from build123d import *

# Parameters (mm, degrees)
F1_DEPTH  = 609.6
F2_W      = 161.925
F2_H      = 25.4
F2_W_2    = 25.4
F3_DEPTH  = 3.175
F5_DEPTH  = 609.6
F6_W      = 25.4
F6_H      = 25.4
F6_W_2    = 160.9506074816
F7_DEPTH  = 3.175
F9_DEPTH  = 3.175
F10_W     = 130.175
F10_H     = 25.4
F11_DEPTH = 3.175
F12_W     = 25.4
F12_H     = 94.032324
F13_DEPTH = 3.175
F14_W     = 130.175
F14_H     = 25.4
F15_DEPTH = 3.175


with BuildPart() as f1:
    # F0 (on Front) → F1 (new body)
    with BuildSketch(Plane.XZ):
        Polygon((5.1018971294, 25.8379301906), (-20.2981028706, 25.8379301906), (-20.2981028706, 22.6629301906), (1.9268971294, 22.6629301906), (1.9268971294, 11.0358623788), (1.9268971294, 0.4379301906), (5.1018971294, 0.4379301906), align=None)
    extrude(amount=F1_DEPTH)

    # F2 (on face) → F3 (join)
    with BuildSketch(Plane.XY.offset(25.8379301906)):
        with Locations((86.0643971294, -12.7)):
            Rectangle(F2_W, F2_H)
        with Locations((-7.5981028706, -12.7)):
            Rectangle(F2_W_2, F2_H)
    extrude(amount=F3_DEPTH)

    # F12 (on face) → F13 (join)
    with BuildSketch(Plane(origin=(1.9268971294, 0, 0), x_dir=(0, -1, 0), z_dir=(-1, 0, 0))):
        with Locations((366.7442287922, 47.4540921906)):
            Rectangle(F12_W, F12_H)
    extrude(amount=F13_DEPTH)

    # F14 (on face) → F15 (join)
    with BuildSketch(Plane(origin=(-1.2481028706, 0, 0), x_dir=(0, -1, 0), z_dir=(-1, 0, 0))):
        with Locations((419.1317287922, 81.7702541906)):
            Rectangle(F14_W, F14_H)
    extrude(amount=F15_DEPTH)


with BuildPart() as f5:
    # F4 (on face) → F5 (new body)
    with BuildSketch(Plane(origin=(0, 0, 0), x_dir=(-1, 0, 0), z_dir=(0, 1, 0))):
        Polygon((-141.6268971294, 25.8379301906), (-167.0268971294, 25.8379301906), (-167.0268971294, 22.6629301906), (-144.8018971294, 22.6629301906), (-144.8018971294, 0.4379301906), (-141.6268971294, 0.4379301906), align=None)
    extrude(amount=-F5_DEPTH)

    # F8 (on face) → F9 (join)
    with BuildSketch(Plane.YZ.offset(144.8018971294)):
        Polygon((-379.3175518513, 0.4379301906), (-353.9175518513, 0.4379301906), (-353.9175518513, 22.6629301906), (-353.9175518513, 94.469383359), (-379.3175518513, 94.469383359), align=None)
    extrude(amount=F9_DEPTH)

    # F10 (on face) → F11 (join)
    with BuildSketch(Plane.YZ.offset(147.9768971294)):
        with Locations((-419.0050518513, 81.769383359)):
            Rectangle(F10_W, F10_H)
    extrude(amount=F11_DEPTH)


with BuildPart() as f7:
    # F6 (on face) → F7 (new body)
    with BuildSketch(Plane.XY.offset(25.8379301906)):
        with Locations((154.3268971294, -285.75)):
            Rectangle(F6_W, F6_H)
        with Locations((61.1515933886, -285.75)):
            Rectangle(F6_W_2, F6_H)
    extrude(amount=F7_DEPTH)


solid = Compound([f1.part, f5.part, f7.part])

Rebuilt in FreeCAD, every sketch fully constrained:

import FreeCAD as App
import Part
import Sketcher
Q = App.Units.Quantity

doc = App.newDocument("Part")
body = doc.addObject("PartDesign::Body", "Body")

# Sketch on XZ plane
sketch1 = doc.addObject("Sketcher::SketchObject", "Sketch")
body.addObject(sketch1)
sketch1.AttachmentSupport = (doc.XZ_Plane, [""])
sketch1.MapMode = "FlatFace"
sketch1.addGeometry([
    Part.LineSegment(App.Vector(5.1, 25.8, 0), App.Vector(-20.3, 25.8, 0)),  # 0
    Part.LineSegment(App.Vector(-20.3, 25.8, 0), App.Vector(-20.3, 22.7, 0)),  # 1
    Part.LineSegment(App.Vector(-20.3, 22.7, 0), App.Vector(1.9, 22.7, 0)),  # 2
    Part.LineSegment(App.Vector(1.9, 22.7, 0), App.Vector(1.9, 0.4, 0)),  # 3
    Part.LineSegment(App.Vector(1.9, 0.4, 0), App.Vector(5.1, 0.4, 0)),  # 4
    Part.LineSegment(App.Vector(5.1, 0.4, 0), App.Vector(5.1, 25.8, 0)),  # 5
], False)
sketch1.addConstraint([
    Sketcher.Constraint("Coincident", 0, 2, 1, 1),
    Sketcher.Constraint("Coincident", 1, 2, 2, 1),
    Sketcher.Constraint("Coincident", 2, 2, 3, 1),
    Sketcher.Constraint("Coincident", 3, 2, 4, 1),
    Sketcher.Constraint("Coincident", 4, 2, 5, 1),
    Sketcher.Constraint("Coincident", 5, 2, 0, 1),
    Sketcher.Constraint("Horizontal", 0),
    Sketcher.Constraint("Vertical", 1),
    Sketcher.Constraint("Horizontal", 2),
    Sketcher.Constraint("Vertical", 3),
    Sketcher.Constraint("Horizontal", 4),
    Sketcher.Constraint("Vertical", 5),
    Sketcher.Constraint("Equal", 4, 1),
    Sketcher.Constraint("Equal", 2, 3),
    Sketcher.Constraint("DistanceX", 0, 2, 0, 1, Q("1 in")),
    Sketcher.Constraint("DistanceX", 2, 1, 2, 2, Q("0.875 in")),
    Sketcher.Constraint("DistanceY", -1, 1, 0, 2, Q("25.83793 mm")),
    Sketcher.Constraint("DistanceX", 0, 2, -1, 1, Q("20.298103 mm")),
])
pad1 = doc.addObject("PartDesign::Pad", "Pad")
body.addObject(pad1)
pad1.Profile = sketch1
pad1.Length = Q("24 in")

# Sketch on XY plane
sketch2 = doc.addObject("Sketcher::SketchObject", "Sketch001")
body.addObject(sketch2)
sketch2.AttachmentSupport = (doc.XY_Plane, [""])
sketch2.MapMode = "FlatFace"
sketch2.AttachmentOffset = App.Placement(App.Vector(0, 0, 25.83793), App.Rotation())
sketch2.addGeometry([
    Part.LineSegment(App.Vector(167, -25, 0), App.Vector(167, 0, 0)),
    Part.LineSegment(App.Vector(167, 0, 0), App.Vector(-20, 0, 0)),
    Part.LineSegment(App.Vector(-20, 0, 0), App.Vector(-20, -25, 0)),
    Part.LineSegment(App.Vector(-20, -25, 0), App.Vector(167, -25, 0)),
], False)
sketch2.addConstraint([
    Sketcher.Constraint("Coincident", 0, 2, 1, 1),
    Sketcher.Constraint("Coincident", 1, 2, 2, 1),
    Sketcher.Constraint("Coincident", 2, 2, 3, 1),
    Sketcher.Constraint("Coincident", 3, 2, 0, 1),
    Sketcher.Constraint("Vertical", 0),
    Sketcher.Constraint("Horizontal", 1),
    Sketcher.Constraint("Vertical", 2),
    Sketcher.Constraint("Horizontal", 3),
    Sketcher.Constraint("PointOnObject", 0, 2, -1),
    Sketcher.Constraint("DistanceY", 0, 1, 0, 2, Q("1 in")),
    Sketcher.Constraint("DistanceX", 1, 2, 1, 1, Q("7.375 in")),
    Sketcher.Constraint("DistanceX", -1, 1, 0, 2, Q("167.026897 mm")),
])
pad2 = doc.addObject("PartDesign::Pad", "Pad001")
body.addObject(pad2)
pad2.Profile = sketch2
pad2.Length = Q("0.125 in")

# Sketch on YZ plane
sketch3 = doc.addObject("Sketcher::SketchObject", "Sketch002")
body.addObject(sketch3)
sketch3.AttachmentSupport = (doc.YZ_Plane, [""])
sketch3.MapMode = "FlatFace"
sketch3.AttachmentOffset = App.Placement(App.Vector(0, 0, 1.926897), App.Rotation())
sketch3.addGeometry([
    Part.LineSegment(App.Vector(-354, 94, 0), App.Vector(-354, 0, 0)),
    Part.LineSegment(App.Vector(-354, 0, 0), App.Vector(-379, 0, 0)),
    Part.LineSegment(App.Vector(-379, 0, 0), App.Vector(-379, 94, 0)),
    Part.LineSegment(App.Vector(-379, 94, 0), App.Vector(-354, 94, 0)),
], False)
sketch3.addConstraint([
    Sketcher.Constraint("Coincident", 0, 2, 1, 1),
    Sketcher.Constraint("Coincident", 1, 2, 2, 1),
    Sketcher.Constraint("Coincident", 2, 2, 3, 1),
    Sketcher.Constraint("Coincident", 3, 2, 0, 1),
    Sketcher.Constraint("Vertical", 0),
    Sketcher.Constraint("Horizontal", 1),
    Sketcher.Constraint("Vertical", 2),
    Sketcher.Constraint("Horizontal", 3),
    Sketcher.Constraint("DistanceX", 1, 2, 1, 1, Q("1 in")),
    Sketcher.Constraint("DistanceY", 0, 2, 0, 1, Q("94.032324 mm")),
    Sketcher.Constraint("DistanceX", 0, 2, -1, 1, Q("354.044229 mm")),
    Sketcher.Constraint("DistanceY", -1, 1, 0, 2, Q("0.43793 mm")),
])
pad3 = doc.addObject("PartDesign::Pad", "Pad002")
body.addObject(pad3)
pad3.Profile = sketch3
pad3.Length = Q("0.125 in")
pad3.Reversed = True

# Sketch on YZ plane
sketch4 = doc.addObject("Sketcher::SketchObject", "Sketch003")
body.addObject(sketch4)
sketch4.AttachmentSupport = (doc.YZ_Plane, [""])
sketch4.MapMode = "FlatFace"
sketch4.AttachmentOffset = App.Placement(App.Vector(0, 0, -1.248103), App.Rotation())
sketch4.addGeometry([
    Part.LineSegment(App.Vector(-354, 94, 0), App.Vector(-354, 69, 0)),
    Part.LineSegment(App.Vector(-354, 69, 0), App.Vector(-484, 69, 0)),
    Part.LineSegment(App.Vector(-484, 69, 0), App.Vector(-484, 94, 0)),
    Part.LineSegment(App.Vector(-484, 94, 0), App.Vector(-354, 94, 0)),
], False)
sketch4.addConstraint([
    Sketcher.Constraint("Coincident", 0, 2, 1, 1),
    Sketcher.Constraint("Coincident", 1, 2, 2, 1),
    Sketcher.Constraint("Coincident", 2, 2, 3, 1),
    Sketcher.Constraint("Coincident", 3, 2, 0, 1),
    Sketcher.Constraint("Vertical", 0),
    Sketcher.Constraint("Horizontal", 1),
    Sketcher.Constraint("Vertical", 2),
    Sketcher.Constraint("Horizontal", 3),
    Sketcher.Constraint("DistanceY", 0, 2, 0, 1, Q("1 in")),
    Sketcher.Constraint("DistanceX", 1, 2, 1, 1, Q("5.125 in")),
    Sketcher.Constraint("DistanceX", 0, 2, -1, 1, Q("354.044229 mm")),
    Sketcher.Constraint("DistanceY", -1, 1, 0, 2, Q("69.070254 mm")),
])
pad4 = doc.addObject("PartDesign::Pad", "Pad003")
body.addObject(pad4)
pad4.Profile = sketch4
pad4.Length = Q("0.125 in")
pad4.Reversed = True
body2 = doc.addObject("PartDesign::Body", "Body001")

# Sketch on XZ plane
sketch5 = doc.addObject("Sketcher::SketchObject", "Sketch004")
body2.addObject(sketch5)
sketch5.AttachmentSupport = (doc.getObject("XZ_Plane001"), [""])
sketch5.MapMode = "FlatFace"
sketch5.addGeometry([
    Part.LineSegment(App.Vector(141.6, 25.8, 0), App.Vector(167, 25.8, 0)),  # 0
    Part.LineSegment(App.Vector(167, 25.8, 0), App.Vector(167, 22.7, 0)),  # 1
    Part.LineSegment(App.Vector(167, 22.7, 0), App.Vector(144.8, 22.7, 0)),  # 2
    Part.LineSegment(App.Vector(144.8, 22.7, 0), App.Vector(144.8, 0.4, 0)),  # 3
    Part.LineSegment(App.Vector(144.8, 0.4, 0), App.Vector(141.6, 0.4, 0)),  # 4
    Part.LineSegment(App.Vector(141.6, 0.4, 0), App.Vector(141.6, 25.8, 0)),  # 5
], False)
sketch5.addConstraint([
    Sketcher.Constraint("Coincident", 0, 2, 1, 1),
    Sketcher.Constraint("Coincident", 1, 2, 2, 1),
    Sketcher.Constraint("Coincident", 2, 2, 3, 1),
    Sketcher.Constraint("Coincident", 3, 2, 4, 1),
    Sketcher.Constraint("Coincident", 4, 2, 5, 1),
    Sketcher.Constraint("Coincident", 5, 2, 0, 1),
    Sketcher.Constraint("Horizontal", 0),
    Sketcher.Constraint("Vertical", 1),
    Sketcher.Constraint("Horizontal", 2),
    Sketcher.Constraint("Vertical", 3),
    Sketcher.Constraint("Horizontal", 4),
    Sketcher.Constraint("Vertical", 5),
    Sketcher.Constraint("Equal", 4, 1),
    Sketcher.Constraint("Equal", 2, 3),
    Sketcher.Constraint("DistanceX", 0, 1, 0, 2, Q("1 in")),
    Sketcher.Constraint("DistanceX", 2, 2, 2, 1, Q("0.875 in")),
    Sketcher.Constraint("DistanceY", -1, 1, 0, 2, Q("25.83793 mm")),
    Sketcher.Constraint("DistanceX", -1, 1, 0, 2, Q("167.026897 mm")),
])
pad5 = doc.addObject("PartDesign::Pad", "Pad004")
body2.addObject(pad5)
pad5.Profile = sketch5
pad5.Length = Q("24 in")

# Sketch on YZ plane
sketch6 = doc.addObject("Sketcher::SketchObject", "Sketch005")
body2.addObject(sketch6)
sketch6.AttachmentSupport = (doc.getObject("YZ_Plane001"), [""])
sketch6.MapMode = "FlatFace"
sketch6.AttachmentOffset = App.Placement(App.Vector(0, 0, 144.801897), App.Rotation())
sketch6.addGeometry([
    Part.LineSegment(App.Vector(-379, 0, 0), App.Vector(-354, 0, 0)),
    Part.LineSegment(App.Vector(-354, 0, 0), App.Vector(-354, 94, 0)),
    Part.LineSegment(App.Vector(-354, 94, 0), App.Vector(-379, 94, 0)),
    Part.LineSegment(App.Vector(-379, 94, 0), App.Vector(-379, 0, 0)),
], False)
sketch6.addConstraint([
    Sketcher.Constraint("Coincident", 0, 2, 1, 1),
    Sketcher.Constraint("Coincident", 1, 2, 2, 1),
    Sketcher.Constraint("Coincident", 2, 2, 3, 1),
    Sketcher.Constraint("Coincident", 3, 2, 0, 1),
    Sketcher.Constraint("Horizontal", 0),
    Sketcher.Constraint("Vertical", 1),
    Sketcher.Constraint("Horizontal", 2),
    Sketcher.Constraint("Vertical", 3),
    Sketcher.Constraint("DistanceX", 0, 1, 0, 2, Q("1 in")),
    Sketcher.Constraint("DistanceY", 1, 1, 1, 2, Q("94.031453 mm")),
    Sketcher.Constraint("DistanceX", 0, 2, -1, 1, Q("353.917552 mm")),
    Sketcher.Constraint("DistanceY", -1, 1, 0, 2, Q("0.43793 mm")),
])
pad6 = doc.addObject("PartDesign::Pad", "Pad005")
body2.addObject(pad6)
pad6.Profile = sketch6
pad6.Length = Q("0.125 in")

# Sketch on YZ plane
sketch7 = doc.addObject("Sketcher::SketchObject", "Sketch006")
body2.addObject(sketch7)
sketch7.AttachmentSupport = (doc.getObject("YZ_Plane001"), [""])
sketch7.MapMode = "FlatFace"
sketch7.AttachmentOffset = App.Placement(App.Vector(0, 0, 147.976897), App.Rotation())
sketch7.addGeometry([
    Part.LineSegment(App.Vector(-484, 94, 0), App.Vector(-484, 69, 0)),
    Part.LineSegment(App.Vector(-484, 69, 0), App.Vector(-354, 69, 0)),
    Part.LineSegment(App.Vector(-354, 69, 0), App.Vector(-354, 94, 0)),
    Part.LineSegment(App.Vector(-354, 94, 0), App.Vector(-484, 94, 0)),
], False)
sketch7.addConstraint([
    Sketcher.Constraint("Coincident", 0, 2, 1, 1),
    Sketcher.Constraint("Coincident", 1, 2, 2, 1),
    Sketcher.Constraint("Coincident", 2, 2, 3, 1),
    Sketcher.Constraint("Coincident", 3, 2, 0, 1),
    Sketcher.Constraint("Vertical", 0),
    Sketcher.Constraint("Horizontal", 1),
    Sketcher.Constraint("Vertical", 2),
    Sketcher.Constraint("Horizontal", 3),
    Sketcher.Constraint("DistanceY", 0, 2, 0, 1, Q("1 in")),
    Sketcher.Constraint("DistanceX", 1, 1, 1, 2, Q("5.125 in")),
    Sketcher.Constraint("DistanceX", 0, 2, -1, 1, Q("484.092552 mm")),
    Sketcher.Constraint("DistanceY", -1, 1, 0, 2, Q("69.069383 mm")),
])
pad7 = doc.addObject("PartDesign::Pad", "Pad006")
body2.addObject(pad7)
pad7.Profile = sketch7
pad7.Length = Q("0.125 in")
body3 = doc.addObject("PartDesign::Body", "Body002")

# Sketch on XY plane
sketch8 = doc.addObject("Sketcher::SketchObject", "Sketch007")
body3.addObject(sketch8)
sketch8.AttachmentSupport = (doc.getObject("XY_Plane002"), [""])
sketch8.MapMode = "FlatFace"
sketch8.AttachmentOffset = App.Placement(App.Vector(0, 0, 25.83793), App.Rotation())
sketch8.addGeometry([
    Part.LineSegment(App.Vector(167, -298, 0), App.Vector(167, -273, 0)),
    Part.LineSegment(App.Vector(167, -273, 0), App.Vector(-19, -273, 0)),
    Part.LineSegment(App.Vector(-19, -273, 0), App.Vector(-19, -298, 0)),
    Part.LineSegment(App.Vector(-19, -298, 0), App.Vector(167, -298, 0)),
], False)
sketch8.addConstraint([
    Sketcher.Constraint("Coincident", 0, 2, 1, 1),
    Sketcher.Constraint("Coincident", 1, 2, 2, 1),
    Sketcher.Constraint("Coincident", 2, 2, 3, 1),
    Sketcher.Constraint("Coincident", 3, 2, 0, 1),
    Sketcher.Constraint("Vertical", 0),
    Sketcher.Constraint("Horizontal", 1),
    Sketcher.Constraint("Vertical", 2),
    Sketcher.Constraint("Horizontal", 3),
    Sketcher.Constraint("DistanceY", 0, 1, 0, 2, Q("1 in")),
    Sketcher.Constraint("DistanceY", 0, 2, -1, 1, Q("10.75 in")),
    Sketcher.Constraint("DistanceX", 1, 2, 1, 1, Q("186.350607 mm")),
    Sketcher.Constraint("DistanceX", 1, 2, -1, 1, Q("19.32371 mm")),
])
pad8 = doc.addObject("PartDesign::Pad", "Pad007")
body3.addObject(pad8)
pad8.Profile = sketch8
pad8.Length = Q("0.125 in")

doc.recompute()
